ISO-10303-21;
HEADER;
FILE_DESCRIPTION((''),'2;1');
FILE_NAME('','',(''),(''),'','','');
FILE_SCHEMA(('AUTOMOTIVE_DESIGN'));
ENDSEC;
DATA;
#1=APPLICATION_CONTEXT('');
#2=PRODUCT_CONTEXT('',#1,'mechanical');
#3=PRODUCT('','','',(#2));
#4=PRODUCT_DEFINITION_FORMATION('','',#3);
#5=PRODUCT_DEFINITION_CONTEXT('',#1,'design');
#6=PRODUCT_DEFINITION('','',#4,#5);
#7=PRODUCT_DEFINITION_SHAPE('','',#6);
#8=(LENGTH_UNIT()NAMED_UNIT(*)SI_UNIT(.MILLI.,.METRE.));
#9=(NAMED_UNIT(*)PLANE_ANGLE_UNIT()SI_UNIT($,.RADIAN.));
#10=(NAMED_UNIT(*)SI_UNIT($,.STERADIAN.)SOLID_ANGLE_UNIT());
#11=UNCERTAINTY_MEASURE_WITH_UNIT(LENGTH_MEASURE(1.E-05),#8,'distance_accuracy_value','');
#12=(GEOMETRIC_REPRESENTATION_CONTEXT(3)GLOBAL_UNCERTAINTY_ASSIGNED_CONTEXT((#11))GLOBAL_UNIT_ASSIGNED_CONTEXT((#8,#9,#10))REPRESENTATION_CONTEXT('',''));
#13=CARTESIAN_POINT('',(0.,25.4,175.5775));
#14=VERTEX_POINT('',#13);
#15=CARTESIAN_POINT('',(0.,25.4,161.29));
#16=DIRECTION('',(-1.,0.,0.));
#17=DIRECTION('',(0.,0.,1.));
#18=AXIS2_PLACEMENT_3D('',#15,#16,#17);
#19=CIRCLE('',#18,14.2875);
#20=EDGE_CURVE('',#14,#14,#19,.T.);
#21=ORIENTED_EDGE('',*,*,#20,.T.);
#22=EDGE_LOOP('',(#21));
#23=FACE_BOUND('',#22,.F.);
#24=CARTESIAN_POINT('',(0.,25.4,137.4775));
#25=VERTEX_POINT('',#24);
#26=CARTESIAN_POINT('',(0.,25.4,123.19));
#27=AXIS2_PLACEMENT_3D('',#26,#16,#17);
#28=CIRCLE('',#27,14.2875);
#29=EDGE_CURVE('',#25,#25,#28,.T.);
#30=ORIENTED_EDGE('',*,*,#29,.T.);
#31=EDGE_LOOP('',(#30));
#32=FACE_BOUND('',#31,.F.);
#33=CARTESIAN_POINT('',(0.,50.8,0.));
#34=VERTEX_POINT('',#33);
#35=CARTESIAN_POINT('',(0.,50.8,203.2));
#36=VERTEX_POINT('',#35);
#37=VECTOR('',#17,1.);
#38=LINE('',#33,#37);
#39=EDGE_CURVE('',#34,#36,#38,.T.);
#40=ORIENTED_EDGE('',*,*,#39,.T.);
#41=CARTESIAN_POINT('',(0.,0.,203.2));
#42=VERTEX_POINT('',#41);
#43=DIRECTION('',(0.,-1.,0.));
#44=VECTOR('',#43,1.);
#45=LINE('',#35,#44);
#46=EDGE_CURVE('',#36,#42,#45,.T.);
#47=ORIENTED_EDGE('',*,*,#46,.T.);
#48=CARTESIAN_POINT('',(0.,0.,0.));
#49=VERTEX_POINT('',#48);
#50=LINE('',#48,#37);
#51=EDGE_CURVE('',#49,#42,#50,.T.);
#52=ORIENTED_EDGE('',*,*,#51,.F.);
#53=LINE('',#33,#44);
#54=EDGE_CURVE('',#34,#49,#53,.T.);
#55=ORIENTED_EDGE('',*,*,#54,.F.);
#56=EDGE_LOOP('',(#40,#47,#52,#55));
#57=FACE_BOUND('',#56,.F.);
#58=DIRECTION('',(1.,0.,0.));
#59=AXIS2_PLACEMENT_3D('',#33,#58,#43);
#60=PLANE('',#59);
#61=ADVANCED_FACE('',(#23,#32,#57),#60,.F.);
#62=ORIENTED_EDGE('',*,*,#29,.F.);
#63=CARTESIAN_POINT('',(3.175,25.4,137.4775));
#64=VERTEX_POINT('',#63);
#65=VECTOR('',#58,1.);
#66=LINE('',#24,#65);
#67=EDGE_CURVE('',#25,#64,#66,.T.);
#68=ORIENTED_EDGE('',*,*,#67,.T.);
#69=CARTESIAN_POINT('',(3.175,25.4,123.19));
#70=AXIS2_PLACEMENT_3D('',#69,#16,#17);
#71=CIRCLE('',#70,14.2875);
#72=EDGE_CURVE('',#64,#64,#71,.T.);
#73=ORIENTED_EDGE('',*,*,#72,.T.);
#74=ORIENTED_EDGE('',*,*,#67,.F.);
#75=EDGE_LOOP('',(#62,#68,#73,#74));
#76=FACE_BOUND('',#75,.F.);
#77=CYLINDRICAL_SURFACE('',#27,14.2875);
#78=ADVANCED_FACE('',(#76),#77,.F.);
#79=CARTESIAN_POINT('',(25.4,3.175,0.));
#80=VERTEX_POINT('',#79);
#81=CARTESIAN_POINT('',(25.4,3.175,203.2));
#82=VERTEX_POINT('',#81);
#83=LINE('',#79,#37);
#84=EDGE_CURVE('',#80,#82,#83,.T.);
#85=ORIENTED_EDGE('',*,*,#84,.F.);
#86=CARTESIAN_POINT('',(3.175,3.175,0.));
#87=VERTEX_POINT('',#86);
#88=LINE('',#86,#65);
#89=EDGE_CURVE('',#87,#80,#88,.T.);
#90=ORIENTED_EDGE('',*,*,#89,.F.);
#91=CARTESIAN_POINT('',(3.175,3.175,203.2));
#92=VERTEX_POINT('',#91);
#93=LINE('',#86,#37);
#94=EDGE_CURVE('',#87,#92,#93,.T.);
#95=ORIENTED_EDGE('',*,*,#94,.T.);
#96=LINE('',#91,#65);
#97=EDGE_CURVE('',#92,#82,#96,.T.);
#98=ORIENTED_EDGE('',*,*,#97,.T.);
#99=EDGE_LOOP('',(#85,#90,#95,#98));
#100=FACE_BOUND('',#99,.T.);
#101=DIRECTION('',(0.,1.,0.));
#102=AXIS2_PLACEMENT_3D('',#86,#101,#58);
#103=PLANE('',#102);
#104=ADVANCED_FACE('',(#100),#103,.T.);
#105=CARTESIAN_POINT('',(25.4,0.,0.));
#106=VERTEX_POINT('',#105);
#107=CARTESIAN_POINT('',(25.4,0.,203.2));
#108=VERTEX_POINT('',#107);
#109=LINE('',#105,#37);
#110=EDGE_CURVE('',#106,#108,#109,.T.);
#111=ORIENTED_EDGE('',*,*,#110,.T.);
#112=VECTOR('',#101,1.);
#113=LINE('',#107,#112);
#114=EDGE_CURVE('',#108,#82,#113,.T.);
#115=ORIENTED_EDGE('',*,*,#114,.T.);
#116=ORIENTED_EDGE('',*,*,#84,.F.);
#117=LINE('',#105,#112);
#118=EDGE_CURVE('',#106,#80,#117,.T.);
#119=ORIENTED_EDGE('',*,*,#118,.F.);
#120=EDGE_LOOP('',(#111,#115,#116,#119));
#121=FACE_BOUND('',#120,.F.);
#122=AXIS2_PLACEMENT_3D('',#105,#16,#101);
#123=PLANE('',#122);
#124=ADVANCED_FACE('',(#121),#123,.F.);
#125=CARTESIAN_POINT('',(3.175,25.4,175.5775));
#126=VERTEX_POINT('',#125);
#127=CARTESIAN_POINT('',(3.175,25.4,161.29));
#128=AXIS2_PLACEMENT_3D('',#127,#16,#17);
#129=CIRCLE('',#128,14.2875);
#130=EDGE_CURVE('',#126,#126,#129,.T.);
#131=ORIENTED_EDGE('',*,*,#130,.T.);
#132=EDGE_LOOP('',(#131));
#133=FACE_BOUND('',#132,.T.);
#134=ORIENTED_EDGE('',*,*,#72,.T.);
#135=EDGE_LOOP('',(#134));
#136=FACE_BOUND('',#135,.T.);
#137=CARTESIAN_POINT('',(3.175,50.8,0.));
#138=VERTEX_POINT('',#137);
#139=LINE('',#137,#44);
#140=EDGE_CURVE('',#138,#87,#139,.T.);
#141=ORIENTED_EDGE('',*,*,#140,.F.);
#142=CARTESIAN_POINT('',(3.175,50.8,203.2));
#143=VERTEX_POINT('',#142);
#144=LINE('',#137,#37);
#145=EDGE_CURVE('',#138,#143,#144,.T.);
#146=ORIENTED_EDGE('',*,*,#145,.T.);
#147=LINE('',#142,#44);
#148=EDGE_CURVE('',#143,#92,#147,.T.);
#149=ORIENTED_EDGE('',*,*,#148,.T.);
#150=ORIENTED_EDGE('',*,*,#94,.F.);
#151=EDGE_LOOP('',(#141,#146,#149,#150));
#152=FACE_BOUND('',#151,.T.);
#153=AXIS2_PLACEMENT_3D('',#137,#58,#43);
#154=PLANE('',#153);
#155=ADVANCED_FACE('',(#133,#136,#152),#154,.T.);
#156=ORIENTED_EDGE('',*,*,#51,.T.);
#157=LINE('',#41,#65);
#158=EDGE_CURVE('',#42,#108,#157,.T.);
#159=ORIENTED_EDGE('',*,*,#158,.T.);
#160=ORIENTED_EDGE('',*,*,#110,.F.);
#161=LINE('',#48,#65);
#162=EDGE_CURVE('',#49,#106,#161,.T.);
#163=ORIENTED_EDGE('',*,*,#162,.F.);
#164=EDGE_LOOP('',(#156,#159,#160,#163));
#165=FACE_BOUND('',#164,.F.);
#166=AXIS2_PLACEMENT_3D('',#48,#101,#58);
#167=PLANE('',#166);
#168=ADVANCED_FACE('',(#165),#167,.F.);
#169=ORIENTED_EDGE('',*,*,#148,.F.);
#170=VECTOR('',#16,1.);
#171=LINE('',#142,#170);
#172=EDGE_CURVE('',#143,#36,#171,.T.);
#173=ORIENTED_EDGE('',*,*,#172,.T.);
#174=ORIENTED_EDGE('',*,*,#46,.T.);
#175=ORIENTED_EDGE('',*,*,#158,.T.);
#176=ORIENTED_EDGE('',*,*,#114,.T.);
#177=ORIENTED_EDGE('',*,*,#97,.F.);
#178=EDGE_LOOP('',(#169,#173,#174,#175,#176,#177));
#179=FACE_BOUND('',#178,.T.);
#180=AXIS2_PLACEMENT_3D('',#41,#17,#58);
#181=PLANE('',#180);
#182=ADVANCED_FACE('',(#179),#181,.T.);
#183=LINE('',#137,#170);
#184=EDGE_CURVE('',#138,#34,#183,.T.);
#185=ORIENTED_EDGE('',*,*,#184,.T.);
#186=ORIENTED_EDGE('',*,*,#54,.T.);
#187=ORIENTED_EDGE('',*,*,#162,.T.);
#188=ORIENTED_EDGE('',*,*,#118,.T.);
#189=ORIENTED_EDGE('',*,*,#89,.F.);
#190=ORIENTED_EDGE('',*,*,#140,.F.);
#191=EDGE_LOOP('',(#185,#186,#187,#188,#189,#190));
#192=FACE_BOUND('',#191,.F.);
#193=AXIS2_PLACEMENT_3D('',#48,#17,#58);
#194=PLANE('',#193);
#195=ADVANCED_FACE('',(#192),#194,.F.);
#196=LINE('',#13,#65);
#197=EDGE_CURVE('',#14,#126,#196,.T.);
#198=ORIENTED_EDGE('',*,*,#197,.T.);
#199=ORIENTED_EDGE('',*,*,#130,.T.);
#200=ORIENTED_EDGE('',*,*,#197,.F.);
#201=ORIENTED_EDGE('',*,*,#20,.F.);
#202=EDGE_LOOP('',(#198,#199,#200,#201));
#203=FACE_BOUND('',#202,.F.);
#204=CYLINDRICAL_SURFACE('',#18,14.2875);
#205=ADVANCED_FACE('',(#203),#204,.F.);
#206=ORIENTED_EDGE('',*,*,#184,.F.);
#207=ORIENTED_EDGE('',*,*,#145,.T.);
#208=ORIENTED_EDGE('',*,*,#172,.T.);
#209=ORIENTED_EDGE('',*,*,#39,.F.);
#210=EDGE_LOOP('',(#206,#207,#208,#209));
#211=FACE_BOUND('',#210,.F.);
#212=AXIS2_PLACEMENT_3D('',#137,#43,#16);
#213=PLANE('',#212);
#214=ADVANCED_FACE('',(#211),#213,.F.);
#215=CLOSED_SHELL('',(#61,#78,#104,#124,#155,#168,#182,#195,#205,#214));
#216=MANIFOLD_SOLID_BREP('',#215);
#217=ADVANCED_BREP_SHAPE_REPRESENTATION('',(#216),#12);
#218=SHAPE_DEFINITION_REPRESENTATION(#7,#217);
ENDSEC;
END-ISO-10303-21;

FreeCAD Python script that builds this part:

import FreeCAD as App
import Part
import Sketcher

V = App.Vector
Q = App.Units.Quantity


def add_polygon(sketch, points):
    """Adds a closed chain of lines whose ends are joined by coincident constraints."""
    first, n = sketch.GeometryCount, len(points)
    for a, b in zip(points, points[1:] + points[:1]):
        sketch.addGeometry(Part.LineSegment(App.Vector(*a, 0), App.Vector(*b, 0)), False)
    for i in range(n):
        sketch.addConstraint(Sketcher.Constraint("Coincident", first + i, 2, first + (i + 1) % n, 1))

doc = App.newDocument("Part")
body = doc.addObject("PartDesign::Body", "Body")

# Sketch on XY plane
sketch1 = body.newObject("Sketcher::SketchObject", "Sketch")
sketch1.AttachmentSupport = (doc.getObject("XY_Plane"), [""])
sketch1.MapMode = "FlatFace"
add_polygon(sketch1, [(0, 50.8), (0, 0), (25.4, 0), (25.4, 3.2), (3.2, 3.2), (3.2, 50.8)])  # lines 0-5
sketch1.addConstraint([
    Sketcher.Constraint("Vertical", 0),
    Sketcher.Constraint("Horizontal", 1),
    Sketcher.Constraint("Vertical", 2),
    Sketcher.Constraint("Horizontal", 3),
    Sketcher.Constraint("Vertical", 4),
    Sketcher.Constraint("Horizontal", 5),
    Sketcher.Constraint("Coincident", 0, 2, -1, 1),
    Sketcher.Constraint("Equal", 5, 2),
    Sketcher.Constraint("DistanceX", 1, 1, 1, 2, Q("1 in")),
    Sketcher.Constraint("DistanceY", 0, 2, 0, 1, Q("2 in")),
    Sketcher.Constraint("DistanceX", 5, 2, 5, 1, Q("0.125 in")),
])
pad1 = body.newObject("PartDesign::Pad", "Pad")
pad1.Profile = sketch1
pad1.Length = Q("8 in")

# Sketch on YZ plane
sketch2 = body.newObject("Sketcher::SketchObject", "Sketch001")
sketch2.AttachmentSupport = (doc.getObject("YZ_Plane"), [""])
sketch2.MapMode = "FlatFace"
sketch2.addGeometry([
    Part.Circle(V(25, 123, 0), V(0, 0, 1), 14),
    Part.Circle(V(25, 161, 0), V(0, 0, 1), 14),
], False)
sketch2.addConstraint([
    Sketcher.Constraint("Equal", 0, 1),
    Sketcher.Constraint("Vertical", 0, 3, 1, 3),
    Sketcher.Constraint("Diameter", 0, Q("1.125 in")),
    Sketcher.Constraint("DistanceX", -1, 1, 0, 3, Q("1 in")),
    Sketcher.Constraint("DistanceY", 0, 3, 1, 3, Q("1.5 in")),
    Sketcher.Constraint("DistanceY", -1, 1, 0, 3, Q("4.85 in")),
])
pocket1 = body.newObject("PartDesign::Pocket", "Pocket")
pocket1.Profile = sketch2
pocket1.Length = Q("8 in")
pocket1.Reversed = True

doc.recompute()
